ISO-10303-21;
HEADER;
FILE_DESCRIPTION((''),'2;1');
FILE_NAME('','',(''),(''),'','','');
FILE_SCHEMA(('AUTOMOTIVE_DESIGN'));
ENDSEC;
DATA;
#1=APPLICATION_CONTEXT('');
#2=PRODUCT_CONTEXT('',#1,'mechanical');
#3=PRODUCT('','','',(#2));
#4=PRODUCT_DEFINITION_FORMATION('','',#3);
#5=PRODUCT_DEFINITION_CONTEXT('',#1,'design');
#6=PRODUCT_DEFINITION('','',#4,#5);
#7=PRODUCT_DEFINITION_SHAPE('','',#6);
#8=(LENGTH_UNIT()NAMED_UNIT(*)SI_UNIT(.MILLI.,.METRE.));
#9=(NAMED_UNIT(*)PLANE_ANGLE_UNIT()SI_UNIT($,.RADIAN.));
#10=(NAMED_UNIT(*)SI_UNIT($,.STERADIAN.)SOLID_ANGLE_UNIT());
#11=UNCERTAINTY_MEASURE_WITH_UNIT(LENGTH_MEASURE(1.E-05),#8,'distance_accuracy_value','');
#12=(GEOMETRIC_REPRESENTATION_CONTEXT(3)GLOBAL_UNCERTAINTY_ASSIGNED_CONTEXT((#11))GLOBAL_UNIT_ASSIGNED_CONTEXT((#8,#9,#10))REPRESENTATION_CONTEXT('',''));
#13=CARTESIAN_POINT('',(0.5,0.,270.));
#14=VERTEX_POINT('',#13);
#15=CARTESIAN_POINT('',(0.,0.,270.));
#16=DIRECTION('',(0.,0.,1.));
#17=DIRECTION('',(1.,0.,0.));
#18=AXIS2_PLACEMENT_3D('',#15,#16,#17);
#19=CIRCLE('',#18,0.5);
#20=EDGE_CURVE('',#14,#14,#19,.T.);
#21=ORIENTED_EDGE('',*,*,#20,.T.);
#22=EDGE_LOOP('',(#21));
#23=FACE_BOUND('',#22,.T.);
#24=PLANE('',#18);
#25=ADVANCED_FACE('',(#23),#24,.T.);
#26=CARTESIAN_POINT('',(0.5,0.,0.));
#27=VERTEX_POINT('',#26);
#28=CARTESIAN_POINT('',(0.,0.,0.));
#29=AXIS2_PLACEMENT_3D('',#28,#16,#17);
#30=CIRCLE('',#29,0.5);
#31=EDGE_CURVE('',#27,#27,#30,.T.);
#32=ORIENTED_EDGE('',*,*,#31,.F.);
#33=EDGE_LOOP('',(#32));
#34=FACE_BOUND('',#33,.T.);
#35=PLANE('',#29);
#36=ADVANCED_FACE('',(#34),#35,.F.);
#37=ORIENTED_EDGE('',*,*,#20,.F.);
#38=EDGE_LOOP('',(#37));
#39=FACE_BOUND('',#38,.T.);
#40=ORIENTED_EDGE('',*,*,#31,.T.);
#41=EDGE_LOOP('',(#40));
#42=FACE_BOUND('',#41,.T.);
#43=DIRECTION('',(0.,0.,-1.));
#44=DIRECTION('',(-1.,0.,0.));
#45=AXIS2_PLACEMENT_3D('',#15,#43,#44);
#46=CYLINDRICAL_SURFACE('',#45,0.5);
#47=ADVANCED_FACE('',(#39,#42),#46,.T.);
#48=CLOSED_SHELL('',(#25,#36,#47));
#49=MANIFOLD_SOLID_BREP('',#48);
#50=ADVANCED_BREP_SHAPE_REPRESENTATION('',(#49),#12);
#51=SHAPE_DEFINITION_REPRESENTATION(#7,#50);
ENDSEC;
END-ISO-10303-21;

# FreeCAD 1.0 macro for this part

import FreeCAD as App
import Part
import Sketcher
Q = App.Units.Quantity

doc = App.newDocument("Part")
params = doc.addObject("Spreadsheet::Sheet", "Params")
for row, (alias, value) in enumerate([
    ("sketch1_diameter", "1 mm"),
    ("pad1_length", "270 mm"),
], start=1):
    params.set(f"A{row}", alias)
    params.set(f"B{row}", "=" + value)
    params.setAlias(f"B{row}", alias)

body = doc.addObject("PartDesign::Body", "Body")

sketch1 = body.newObject("Sketcher::SketchObject", "Sketch")
sketch1.AttachmentSupport = (doc.getObject("XY_Plane"), [""])
sketch1.MapMode = "FlatFace"
sketch1.addGeometry(Part.Circle(App.Vector(0, 0, 0), App.Vector(0, 0, 1), 0.5), False)
sketch1.addConstraint(Sketcher.Constraint("Coincident", 0, 3, -1, 1))
sketch1.addConstraint(Sketcher.Constraint("Diameter", 0, Q("1 mm")))
sketch1.setExpression("Constraints[1]", "Params.sketch1_diameter")
pad1 = body.newObject("PartDesign::Pad", "Pad")
pad1.Profile = sketch1
pad1.setExpression("Length", "Params.pad1_length")

doc.recompute()
